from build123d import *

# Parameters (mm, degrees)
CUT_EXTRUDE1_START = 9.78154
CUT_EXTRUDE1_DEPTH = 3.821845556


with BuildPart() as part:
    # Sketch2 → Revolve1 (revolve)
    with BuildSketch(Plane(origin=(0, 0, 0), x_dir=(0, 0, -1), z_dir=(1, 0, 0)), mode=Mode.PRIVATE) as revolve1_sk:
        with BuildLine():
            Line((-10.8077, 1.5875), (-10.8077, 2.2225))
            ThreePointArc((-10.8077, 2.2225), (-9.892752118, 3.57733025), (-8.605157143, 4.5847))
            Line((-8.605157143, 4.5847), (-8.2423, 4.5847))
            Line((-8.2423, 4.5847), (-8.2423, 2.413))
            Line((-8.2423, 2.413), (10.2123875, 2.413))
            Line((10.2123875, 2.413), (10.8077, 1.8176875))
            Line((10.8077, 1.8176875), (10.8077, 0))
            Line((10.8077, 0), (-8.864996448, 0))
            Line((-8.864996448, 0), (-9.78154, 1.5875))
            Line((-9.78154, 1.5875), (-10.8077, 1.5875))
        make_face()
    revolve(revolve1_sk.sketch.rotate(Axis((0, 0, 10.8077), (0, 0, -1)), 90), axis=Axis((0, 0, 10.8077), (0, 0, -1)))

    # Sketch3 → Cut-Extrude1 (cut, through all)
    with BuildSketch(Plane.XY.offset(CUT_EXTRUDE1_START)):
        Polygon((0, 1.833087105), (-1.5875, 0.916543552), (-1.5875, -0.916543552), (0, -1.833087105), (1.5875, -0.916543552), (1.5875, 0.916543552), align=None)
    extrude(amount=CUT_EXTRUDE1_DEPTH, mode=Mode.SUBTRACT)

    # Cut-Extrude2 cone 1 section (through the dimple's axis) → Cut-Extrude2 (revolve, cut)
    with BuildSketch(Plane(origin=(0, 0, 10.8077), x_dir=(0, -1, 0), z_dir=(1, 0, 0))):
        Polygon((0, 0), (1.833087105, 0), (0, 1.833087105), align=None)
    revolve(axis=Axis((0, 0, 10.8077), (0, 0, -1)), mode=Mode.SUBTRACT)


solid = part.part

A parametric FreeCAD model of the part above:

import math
import FreeCAD as App
import Part
import Sketcher
Q = App.Units.Quantity

doc = App.newDocument("Part")
body = doc.addObject("PartDesign::Body", "Body")

# Sketch on YZ plane
sketch1 = body.newObject("Sketcher::SketchObject", "Sketch")
sketch1.AttachmentSupport = (doc.getObject("YZ_Plane"), [""])
sketch1.MapMode = "FlatFace"
sketch1.addGeometry([
    Part.LineSegment(App.Vector(2.22, 10.81, 0), App.Vector(1.59, 10.81, 0)),  # 0
    Part.LineSegment(App.Vector(1.59, 10.81, 0), App.Vector(1.59, 9.78, 0)),  # 1
    Part.LineSegment(App.Vector(1.59, 9.78, 0), App.Vector(0, 8.86, 0)),  # 2
    Part.LineSegment(App.Vector(0, 8.86, 0), App.Vector(0, -10.81, 0)),  # 3
    Part.LineSegment(App.Vector(0, -10.81, 0), App.Vector(1.82, -10.81, 0)),  # 4
    Part.LineSegment(App.Vector(1.82, -10.81, 0), App.Vector(2.41, -10.21, 0)),  # 5
    Part.LineSegment(App.Vector(2.41, -10.21, 0), App.Vector(2.41, 8.24, 0)),  # 6
    Part.LineSegment(App.Vector(2.41, 8.24, 0), App.Vector(4.58, 8.24, 0)),  # 7
    Part.LineSegment(App.Vector(4.58, 8.24, 0), App.Vector(4.58, 8.61, 0)),  # 8
    Part.ArcOfCircle(Part.Circle(App.Vector(0, 6.06, 0), App.Vector(0, 0, 1), 5.25), math.radians(29), math.radians(65)),  # 9
], False)
sketch1.addConstraint([
    Sketcher.Constraint("Coincident", 0, 2, 1, 1),
    Sketcher.Constraint("Coincident", 1, 2, 2, 1),
    Sketcher.Constraint("Coincident", 2, 2, 3, 1),
    Sketcher.Constraint("Coincident", 3, 2, 4, 1),
    Sketcher.Constraint("Coincident", 4, 2, 5, 1),
    Sketcher.Constraint("Coincident", 5, 2, 6, 1),
    Sketcher.Constraint("Coincident", 6, 2, 7, 1),
    Sketcher.Constraint("Coincident", 7, 2, 8, 1),
    Sketcher.Constraint("Coincident", 8, 2, 9, 1),
    Sketcher.Constraint("Coincident", 9, 2, 0, 1),
    Sketcher.Constraint("Horizontal", 0),
    Sketcher.Constraint("Vertical", 1),
    Sketcher.Constraint("Vertical", 3),
    Sketcher.Constraint("Horizontal", 4),
    Sketcher.Constraint("Vertical", 6),
    Sketcher.Constraint("Horizontal", 7),
    Sketcher.Constraint("Vertical", 8),
    Sketcher.Constraint("PointOnObject", 9, 3, -2),
    Sketcher.Constraint("PointOnObject", 2, 2, -2),
    Sketcher.Constraint("Angle", 2, Q("-150 deg")),
    Sketcher.Constraint("Angle", 5, Q("45 deg")),
    Sketcher.Constraint("DistanceX", 0, 2, 0, 1, Q("0.025 in")),
    Sketcher.Constraint("DistanceX", 7, 1, 7, 2, Q("0.0855 in")),
    Sketcher.Constraint("DistanceY", 1, 2, 1, 1, Q("0.0404 in")),
    Sketcher.Constraint("DistanceX", -1, 1, 0, 2, Q("0.0625 in")),
    Sketcher.Constraint("DistanceX", -1, 1, 5, 2, Q("0.095 in")),
    Sketcher.Constraint("DistanceY", 3, 2, 0, 2, Q("0.851 in")),
    Sketcher.Constraint("DistanceY", 6, 2, 0, 2, Q("0.101 in")),
    Sketcher.Constraint("DistanceY", -1, 1, 0, 2, Q("0.4255 in")),
    Sketcher.Constraint("Radius", 9, 5.245676),
    Sketcher.Constraint("Distance", 5, 0.841899),
])
revolution = body.newObject("PartDesign::Revolution", "Revolution")
revolution.Profile = sketch1
revolution.ReferenceAxis = (sketch1, ["V_Axis"])
revolution.Angle = 360

# Sketch on XY plane
sketch2 = body.newObject("Sketcher::SketchObject", "Sketch001")
sketch2.AttachmentSupport = (doc.getObject("XY_Plane"), [""])
sketch2.MapMode = "FlatFace"
sketch2.AttachmentOffset = App.Placement(App.Vector(0, 0, 0.3851 * 25.4), App.Rotation())
sketch2.addGeometry([
    Part.LineSegment(App.Vector(0, 1.8, 0), App.Vector(-1.6, 0.9, 0)),  # 0
    Part.LineSegment(App.Vector(-1.6, 0.9, 0), App.Vector(-1.6, -0.9, 0)),  # 1
    Part.LineSegment(App.Vector(-1.6, -0.9, 0), App.Vector(0, -1.8, 0)),  # 2
    Part.LineSegment(App.Vector(0, -1.8, 0), App.Vector(1.6, -0.9, 0)),  # 3
    Part.LineSegment(App.Vector(1.6, -0.9, 0), App.Vector(1.6, 0.9, 0)),  # 4
    Part.LineSegment(App.Vector(1.6, 0.9, 0), App.Vector(0, 1.8, 0)),  # 5
], False)
sketch2.addConstraint([
    Sketcher.Constraint("Coincident", 0, 2, 1, 1),
    Sketcher.Constraint("Coincident", 1, 2, 2, 1),
    Sketcher.Constraint("Coincident", 2, 2, 3, 1),
    Sketcher.Constraint("Coincident", 3, 2, 4, 1),
    Sketcher.Constraint("Coincident", 4, 2, 5, 1),
    Sketcher.Constraint("Coincident", 5, 2, 0, 1),
    Sketcher.Constraint("Vertical", 1),
    Sketcher.Constraint("Vertical", 4),
    Sketcher.Constraint("Symmetric", 0, 2, 3, 2, -1, 1),
    Sketcher.Constraint("Symmetric", 2, 2, 5, 2, -1, 1),
    Sketcher.Constraint("PointOnObject", 2, 2, -2),
    Sketcher.Constraint("Parallel", 2, 5),
    Sketcher.Constraint("Horizontal", 1, 2, 3, 2),
    Sketcher.Constraint("Angle", 0, Q("-150 deg")),
    Sketcher.Constraint("DistanceX", 0, 2, -1, 1, Q("0.0625 in")),
    Sketcher.Constraint("DistanceY", 1, 2, 1, 1, 1.833087),
])
pocket1 = body.newObject("PartDesign::Pocket", "Pocket")
pocket1.Profile = sketch2
pocket1.Type = "ThroughAll"
pocket1.Reversed = True

# Sketch on YZ plane
sketch3 = body.newObject("Sketcher::SketchObject", "Sketch002")
sketch3.AttachmentSupport = (doc.getObject("YZ_Plane"), [""])
sketch3.MapMode = "FlatFace"
sketch3.addGeometry([
    Part.LineSegment(App.Vector(0, 10.8, 0), App.Vector(-1.8, 10.8, 0)),
    Part.LineSegment(App.Vector(-1.8, 10.8, 0), App.Vector(0, 9, 0)),
    Part.LineSegment(App.Vector(0, 9, 0), App.Vector(0, 10.8, 0)),
], False)
sketch3.addConstraint([
    Sketcher.Constraint("Coincident", 0, 2, 1, 1),
    Sketcher.Constraint("Coincident", 1, 2, 2, 1),
    Sketcher.Constraint("Coincident", 2, 2, 0, 1),
    Sketcher.Constraint("Horizontal", 0),
    Sketcher.Constraint("Vertical", 2),
    Sketcher.Constraint("PointOnObject", 1, 2, -2),
    Sketcher.Constraint("Equal", 0, 2),
    Sketcher.Constraint("DistanceY", -1, 1, 0, 2, Q("0.4255 in")),
    Sketcher.Constraint("DistanceX", 0, 2, 0, 1, 1.833087),
])
groove = body.newObject("PartDesign::Groove", "Groove")
groove.Profile = sketch3
groove.ReferenceAxis = (sketch3, ["V_Axis"])
groove.Angle = 360

doc.recompute()
